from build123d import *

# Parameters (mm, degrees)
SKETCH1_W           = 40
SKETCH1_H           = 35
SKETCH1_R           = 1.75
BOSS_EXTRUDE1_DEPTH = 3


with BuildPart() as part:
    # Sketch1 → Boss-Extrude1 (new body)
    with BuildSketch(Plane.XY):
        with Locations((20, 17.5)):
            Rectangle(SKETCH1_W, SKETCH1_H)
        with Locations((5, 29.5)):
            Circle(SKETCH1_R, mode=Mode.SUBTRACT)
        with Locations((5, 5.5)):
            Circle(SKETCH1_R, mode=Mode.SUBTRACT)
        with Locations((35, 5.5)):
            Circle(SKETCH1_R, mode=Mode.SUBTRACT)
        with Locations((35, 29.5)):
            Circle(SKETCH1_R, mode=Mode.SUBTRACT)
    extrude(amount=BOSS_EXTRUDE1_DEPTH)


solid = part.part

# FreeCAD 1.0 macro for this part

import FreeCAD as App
import Part
import Sketcher
from FreeCAD import Vector

doc = App.newDocument("Part")
body = doc.addObject("PartDesign::Body", "Body")

# Sketch on XY plane
sketch1 = doc.addObject("Sketcher::SketchObject", "Sketch")
body.addObject(sketch1)
sketch1.AttachmentSupport = (doc.XY_Plane, [""])
sketch1.MapMode = "FlatFace"
sketch1.addGeometry([
    Part.LineSegment(Vector(0, 35, 0), Vector(0, 0, 0)),  # 0
    Part.LineSegment(Vector(0, 0, 0), Vector(40, 0, 0)),  # 1
    Part.LineSegment(Vector(40, 0, 0), Vector(40, 35, 0)),  # 2
    Part.LineSegment(Vector(40, 35, 0), Vector(0, 35, 0)),  # 3
    Part.Circle(Vector(5, 5.5, 0), Vector(0, 0, 1), 1.75),  # 4
    Part.Circle(Vector(35, 5.5, 0), Vector(0, 0, 1), 1.75),  # 5
    Part.Circle(Vector(5, 29.5, 0), Vector(0, 0, 1), 1.75),  # 6
    Part.Circle(Vector(35, 29.5, 0), Vector(0, 0, 1), 1.75),  # 7
], False)
sketch1.addConstraint([
    Sketcher.Constraint("Coincident", 0, 2, 1, 1),
    Sketcher.Constraint("Coincident", 1, 2, 2, 1),
    Sketcher.Constraint("Coincident", 2, 2, 3, 1),
    Sketcher.Constraint("Coincident", 3, 2, 0, 1),
    Sketcher.Constraint("Vertical", 0),
    Sketcher.Constraint("Horizontal", 1),
    Sketcher.Constraint("Vertical", 2),
    Sketcher.Constraint("Horizontal", 3),
    Sketcher.Constraint("Coincident", 0, 2, -1, 1),
    Sketcher.Constraint("Equal", 4, 5),
    Sketcher.Constraint("Equal", 5, 6),
    Sketcher.Constraint("Equal", 6, 7),
    Sketcher.Constraint("Horizontal", 4, 3, 5, 3),
    Sketcher.Constraint("Horizontal", 6, 3, 7, 3),
    Sketcher.Constraint("Vertical", 4, 3, 6, 3),
    Sketcher.Constraint("Vertical", 5, 3, 7, 3),
    Sketcher.Constraint("Diameter", 4, 3.5),
    Sketcher.Constraint("DistanceX", 1, 1, 1, 2, 40.0),
    Sketcher.Constraint("DistanceY", 0, 2, 0, 1, 35.0),
    Sketcher.Constraint("DistanceX", -1, 1, 4, 3, 5.0),
    Sketcher.Constraint("DistanceX", -1, 1, 5, 3, 35.0),
    Sketcher.Constraint("DistanceY", 4, 3, 6, 3, 24.0),
    Sketcher.Constraint("DistanceY", -1, 1, 4, 3, 5.5),
])
pad1 = doc.addObject("PartDesign::Pad", "Pad")
body.addObject(pad1)
pad1.Profile = sketch1
pad1.Length = 3

doc.recompute()
